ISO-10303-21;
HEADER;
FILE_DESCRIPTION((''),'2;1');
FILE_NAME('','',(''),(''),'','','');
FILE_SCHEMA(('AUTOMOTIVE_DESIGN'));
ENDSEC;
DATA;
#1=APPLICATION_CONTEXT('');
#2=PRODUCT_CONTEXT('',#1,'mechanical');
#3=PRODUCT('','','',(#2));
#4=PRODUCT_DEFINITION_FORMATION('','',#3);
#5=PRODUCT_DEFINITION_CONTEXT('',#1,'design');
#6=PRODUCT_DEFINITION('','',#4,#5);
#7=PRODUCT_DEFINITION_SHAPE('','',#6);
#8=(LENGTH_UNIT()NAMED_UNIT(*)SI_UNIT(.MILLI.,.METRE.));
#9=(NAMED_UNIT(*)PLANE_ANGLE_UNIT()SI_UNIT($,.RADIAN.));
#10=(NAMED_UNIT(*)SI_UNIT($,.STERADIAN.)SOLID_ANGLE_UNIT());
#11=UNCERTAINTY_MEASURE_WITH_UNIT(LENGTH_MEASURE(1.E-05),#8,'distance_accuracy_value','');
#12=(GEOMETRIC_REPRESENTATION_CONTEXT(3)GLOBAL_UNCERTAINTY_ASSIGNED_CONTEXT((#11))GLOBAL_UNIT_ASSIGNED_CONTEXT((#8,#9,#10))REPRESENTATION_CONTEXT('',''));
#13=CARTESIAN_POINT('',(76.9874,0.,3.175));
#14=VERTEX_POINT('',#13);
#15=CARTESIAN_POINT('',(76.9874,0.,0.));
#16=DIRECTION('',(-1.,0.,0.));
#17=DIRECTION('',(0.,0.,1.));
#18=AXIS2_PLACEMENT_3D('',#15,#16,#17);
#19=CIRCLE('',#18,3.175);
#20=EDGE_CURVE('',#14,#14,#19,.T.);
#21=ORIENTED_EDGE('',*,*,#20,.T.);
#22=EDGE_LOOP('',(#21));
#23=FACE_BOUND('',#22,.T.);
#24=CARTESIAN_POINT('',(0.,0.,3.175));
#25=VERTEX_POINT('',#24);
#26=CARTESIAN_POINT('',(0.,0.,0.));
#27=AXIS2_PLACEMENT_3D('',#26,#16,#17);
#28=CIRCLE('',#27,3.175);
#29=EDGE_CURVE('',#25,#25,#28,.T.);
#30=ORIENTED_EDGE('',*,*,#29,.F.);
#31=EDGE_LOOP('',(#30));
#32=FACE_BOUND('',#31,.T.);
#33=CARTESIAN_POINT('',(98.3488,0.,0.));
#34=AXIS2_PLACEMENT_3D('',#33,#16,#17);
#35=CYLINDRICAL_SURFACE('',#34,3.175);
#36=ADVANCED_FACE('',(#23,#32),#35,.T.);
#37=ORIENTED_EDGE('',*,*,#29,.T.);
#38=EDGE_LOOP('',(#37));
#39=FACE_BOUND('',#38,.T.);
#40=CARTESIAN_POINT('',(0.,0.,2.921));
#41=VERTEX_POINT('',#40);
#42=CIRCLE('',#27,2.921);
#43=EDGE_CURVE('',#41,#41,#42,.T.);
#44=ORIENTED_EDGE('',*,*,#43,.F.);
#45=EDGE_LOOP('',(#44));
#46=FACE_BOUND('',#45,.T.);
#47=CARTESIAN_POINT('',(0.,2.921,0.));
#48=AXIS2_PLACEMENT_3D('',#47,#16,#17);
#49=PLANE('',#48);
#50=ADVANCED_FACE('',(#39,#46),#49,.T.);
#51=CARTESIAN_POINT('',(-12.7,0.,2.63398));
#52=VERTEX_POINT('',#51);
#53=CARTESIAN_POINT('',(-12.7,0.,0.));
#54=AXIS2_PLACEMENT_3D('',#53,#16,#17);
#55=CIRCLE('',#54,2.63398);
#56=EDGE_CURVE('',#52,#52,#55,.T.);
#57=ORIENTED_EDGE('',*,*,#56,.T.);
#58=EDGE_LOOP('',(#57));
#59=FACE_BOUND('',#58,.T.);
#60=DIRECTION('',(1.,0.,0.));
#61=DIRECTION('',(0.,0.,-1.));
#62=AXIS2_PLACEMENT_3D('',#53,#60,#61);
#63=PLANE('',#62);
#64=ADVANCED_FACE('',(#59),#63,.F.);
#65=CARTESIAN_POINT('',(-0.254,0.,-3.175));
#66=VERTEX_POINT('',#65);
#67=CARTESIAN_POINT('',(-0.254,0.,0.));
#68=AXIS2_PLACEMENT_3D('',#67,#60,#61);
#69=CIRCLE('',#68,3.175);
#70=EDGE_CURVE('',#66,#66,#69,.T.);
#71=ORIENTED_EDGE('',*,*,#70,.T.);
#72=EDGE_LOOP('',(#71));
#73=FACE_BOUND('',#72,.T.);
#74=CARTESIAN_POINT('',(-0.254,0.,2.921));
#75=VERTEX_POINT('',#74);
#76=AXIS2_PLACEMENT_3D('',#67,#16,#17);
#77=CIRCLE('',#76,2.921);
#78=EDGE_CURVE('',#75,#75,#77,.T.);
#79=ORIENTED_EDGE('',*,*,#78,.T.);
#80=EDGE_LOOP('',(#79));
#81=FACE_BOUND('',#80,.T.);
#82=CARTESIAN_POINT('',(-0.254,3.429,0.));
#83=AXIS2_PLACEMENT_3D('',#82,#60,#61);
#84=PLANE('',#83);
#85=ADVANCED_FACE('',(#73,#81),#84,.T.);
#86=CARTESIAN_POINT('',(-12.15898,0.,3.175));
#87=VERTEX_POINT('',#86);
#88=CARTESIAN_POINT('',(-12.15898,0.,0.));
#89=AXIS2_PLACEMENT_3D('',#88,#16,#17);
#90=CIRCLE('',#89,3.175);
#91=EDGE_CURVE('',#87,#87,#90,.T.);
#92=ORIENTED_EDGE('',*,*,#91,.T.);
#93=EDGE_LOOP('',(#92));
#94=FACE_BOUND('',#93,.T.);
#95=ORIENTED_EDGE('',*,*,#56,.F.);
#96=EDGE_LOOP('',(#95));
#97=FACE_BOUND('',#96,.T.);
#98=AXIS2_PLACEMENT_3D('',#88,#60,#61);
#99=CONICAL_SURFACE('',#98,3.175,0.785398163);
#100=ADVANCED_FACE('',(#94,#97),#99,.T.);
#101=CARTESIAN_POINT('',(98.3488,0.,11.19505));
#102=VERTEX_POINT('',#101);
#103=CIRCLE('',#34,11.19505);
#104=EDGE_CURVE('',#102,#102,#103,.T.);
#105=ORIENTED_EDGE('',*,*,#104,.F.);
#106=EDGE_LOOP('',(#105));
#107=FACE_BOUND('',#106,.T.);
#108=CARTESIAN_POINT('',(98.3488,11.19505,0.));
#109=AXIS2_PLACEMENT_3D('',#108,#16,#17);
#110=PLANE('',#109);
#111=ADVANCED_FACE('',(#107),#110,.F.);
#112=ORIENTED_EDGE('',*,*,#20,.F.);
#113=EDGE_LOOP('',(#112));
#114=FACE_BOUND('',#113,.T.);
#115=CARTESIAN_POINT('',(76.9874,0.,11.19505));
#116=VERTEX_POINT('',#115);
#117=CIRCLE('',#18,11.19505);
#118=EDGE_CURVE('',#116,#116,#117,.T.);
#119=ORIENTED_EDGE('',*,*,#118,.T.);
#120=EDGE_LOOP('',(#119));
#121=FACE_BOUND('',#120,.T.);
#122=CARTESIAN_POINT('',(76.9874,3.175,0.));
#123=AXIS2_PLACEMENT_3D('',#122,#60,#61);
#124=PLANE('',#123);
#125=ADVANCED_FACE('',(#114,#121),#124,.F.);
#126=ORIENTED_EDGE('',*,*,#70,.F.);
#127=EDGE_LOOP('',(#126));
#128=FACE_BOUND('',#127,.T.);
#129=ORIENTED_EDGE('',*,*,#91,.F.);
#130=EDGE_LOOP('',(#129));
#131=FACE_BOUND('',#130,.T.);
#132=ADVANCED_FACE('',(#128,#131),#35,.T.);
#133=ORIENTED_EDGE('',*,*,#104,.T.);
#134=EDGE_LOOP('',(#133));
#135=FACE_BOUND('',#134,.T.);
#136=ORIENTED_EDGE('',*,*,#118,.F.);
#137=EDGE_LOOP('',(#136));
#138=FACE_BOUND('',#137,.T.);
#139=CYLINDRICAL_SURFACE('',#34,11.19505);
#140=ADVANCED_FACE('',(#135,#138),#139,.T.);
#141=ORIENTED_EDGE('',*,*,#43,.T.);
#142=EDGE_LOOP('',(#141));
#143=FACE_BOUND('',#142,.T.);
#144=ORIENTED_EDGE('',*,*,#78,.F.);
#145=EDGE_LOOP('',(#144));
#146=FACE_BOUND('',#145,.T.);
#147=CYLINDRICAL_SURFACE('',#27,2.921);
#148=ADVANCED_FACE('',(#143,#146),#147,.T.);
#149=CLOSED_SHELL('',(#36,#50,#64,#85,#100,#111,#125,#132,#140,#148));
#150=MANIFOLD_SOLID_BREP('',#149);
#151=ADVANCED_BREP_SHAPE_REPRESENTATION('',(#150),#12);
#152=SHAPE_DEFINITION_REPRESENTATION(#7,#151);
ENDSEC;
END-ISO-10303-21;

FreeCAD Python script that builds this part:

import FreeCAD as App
import Part
import Sketcher
Q = App.Units.Quantity


def add_polygon(sketch, points):
    """Adds a closed chain of lines whose ends are joined by coincident constraints."""
    first, n = sketch.GeometryCount, len(points)
    for a, b in zip(points, points[1:] + points[:1]):
        sketch.addGeometry(Part.LineSegment(App.Vector(*a, 0), App.Vector(*b, 0)), False)
    for i in range(n):
        sketch.addConstraint(Sketcher.Constraint("Coincident", first + i, 2, first + (i + 1) % n, 1))

doc = App.newDocument("Part")
body = doc.addObject("PartDesign::Body", "Body")

# Sketch on XY plane
sketch1 = body.newObject("Sketcher::SketchObject", "Sketch")
sketch1.AttachmentSupport = (doc.getObject("XY_Plane"), [""])
sketch1.MapMode = "FlatFace"
add_polygon(sketch1, [(0, 3.175), (0, 0), (98.3488, 0), (98.3488, 11.19505), (76.9874, 11.19505), (76.9874, 3.175)])  # lines 0-5
sketch1.addConstraint(Sketcher.Constraint("Vertical", 0))
sketch1.addConstraint(Sketcher.Constraint("Horizontal", 1))
sketch1.addConstraint(Sketcher.Constraint("Vertical", 2))
sketch1.addConstraint(Sketcher.Constraint("Horizontal", 3))
sketch1.addConstraint(Sketcher.Constraint("Vertical", 4))
sketch1.addConstraint(Sketcher.Constraint("Horizontal", 5))
sketch1.addConstraint(Sketcher.Constraint("Coincident", 0, 2, -1, 1))
sketch1.addConstraint(Sketcher.Constraint("DistanceX", 1, 1, 1, 2, Q("3.872 in")))
sketch1.addConstraint(Sketcher.Constraint("DistanceX", 3, 2, 3, 1, Q("0.841 in")))
sketch1.addConstraint(Sketcher.Constraint("DistanceY", 0, 2, 0, 1, Q("0.125 in")))
sketch1.addConstraint(Sketcher.Constraint("DistanceY", 2, 1, 2, 2, 11.19505))
revolution = body.newObject("PartDesign::Revolution", "Revolution")
revolution.Profile = sketch1
revolution.ReferenceAxis = (sketch1, ["H_Axis"])
revolution.Angle = 360

# Sketch on XY plane
sketch2 = body.newObject("Sketcher::SketchObject", "Sketch001")
sketch2.AttachmentSupport = (doc.getObject("XY_Plane"), [""])
sketch2.MapMode = "FlatFace"
add_polygon(sketch2, [(-12.7, 2.63398), (-12.7, 0), (0, 0), (0, 3.175), (-12.15898, 3.175)])  # lines 0-4
sketch2.addConstraint(Sketcher.Constraint("Vertical", 0))
sketch2.addConstraint(Sketcher.Constraint("Horizontal", 1))
sketch2.addConstraint(Sketcher.Constraint("Vertical", 2))
sketch2.addConstraint(Sketcher.Constraint("Horizontal", 3))
sketch2.addConstraint(Sketcher.Constraint("Coincident", 1, 2, -1, 1))
sketch2.addConstraint(Sketcher.Constraint("DistanceX", 1, 1, 1, 2, Q("0.5 in")))
sketch2.addConstraint(Sketcher.Constraint("Angle", 4, Q("-135 deg")))
sketch2.addConstraint(Sketcher.Constraint("DistanceY", 2, 1, 2, 2, Q("0.125 in")))
sketch2.addConstraint(Sketcher.Constraint("DistanceX", 3, 2, 3, 1, Q("0.4787 in")))
revolution2 = body.newObject("PartDesign::Revolution", "Revolution001")
revolution2.Profile = sketch2
revolution2.ReferenceAxis = (sketch2, ["H_Axis"])
revolution2.Angle = 360

# Sketch on XY plane
sketch3 = body.newObject("Sketcher::SketchObject", "Sketch002")
sketch3.AttachmentSupport = (doc.getObject("XY_Plane"), [""])
sketch3.MapMode = "FlatFace"
add_polygon(sketch3, [(-0.254, 3.429), (-0.254, 2.921), (0, 2.921), (0, 3.429)])  # lines 0-3
sketch3.addConstraint(Sketcher.Constraint("Vertical", 0))
sketch3.addConstraint(Sketcher.Constraint("Horizontal", 1))
sketch3.addConstraint(Sketcher.Constraint("Vertical", 2))
sketch3.addConstraint(Sketcher.Constraint("Horizontal", 3))
sketch3.addConstraint(Sketcher.Constraint("PointOnObject", 1, 2, -2))
sketch3.addConstraint(Sketcher.Constraint("DistanceX", 1, 1, 1, 2, Q("0.01 in")))
sketch3.addConstraint(Sketcher.Constraint("DistanceY", 0, 2, 0, 1, Q("0.02 in")))
sketch3.addConstraint(Sketcher.Constraint("DistanceY", -1, 1, 0, 2, Q("0.115 in")))
groove = body.newObject("PartDesign::Groove", "Groove")
groove.Profile = sketch3
groove.ReferenceAxis = (sketch3, ["H_Axis"])
groove.Angle = 360

doc.recompute()
